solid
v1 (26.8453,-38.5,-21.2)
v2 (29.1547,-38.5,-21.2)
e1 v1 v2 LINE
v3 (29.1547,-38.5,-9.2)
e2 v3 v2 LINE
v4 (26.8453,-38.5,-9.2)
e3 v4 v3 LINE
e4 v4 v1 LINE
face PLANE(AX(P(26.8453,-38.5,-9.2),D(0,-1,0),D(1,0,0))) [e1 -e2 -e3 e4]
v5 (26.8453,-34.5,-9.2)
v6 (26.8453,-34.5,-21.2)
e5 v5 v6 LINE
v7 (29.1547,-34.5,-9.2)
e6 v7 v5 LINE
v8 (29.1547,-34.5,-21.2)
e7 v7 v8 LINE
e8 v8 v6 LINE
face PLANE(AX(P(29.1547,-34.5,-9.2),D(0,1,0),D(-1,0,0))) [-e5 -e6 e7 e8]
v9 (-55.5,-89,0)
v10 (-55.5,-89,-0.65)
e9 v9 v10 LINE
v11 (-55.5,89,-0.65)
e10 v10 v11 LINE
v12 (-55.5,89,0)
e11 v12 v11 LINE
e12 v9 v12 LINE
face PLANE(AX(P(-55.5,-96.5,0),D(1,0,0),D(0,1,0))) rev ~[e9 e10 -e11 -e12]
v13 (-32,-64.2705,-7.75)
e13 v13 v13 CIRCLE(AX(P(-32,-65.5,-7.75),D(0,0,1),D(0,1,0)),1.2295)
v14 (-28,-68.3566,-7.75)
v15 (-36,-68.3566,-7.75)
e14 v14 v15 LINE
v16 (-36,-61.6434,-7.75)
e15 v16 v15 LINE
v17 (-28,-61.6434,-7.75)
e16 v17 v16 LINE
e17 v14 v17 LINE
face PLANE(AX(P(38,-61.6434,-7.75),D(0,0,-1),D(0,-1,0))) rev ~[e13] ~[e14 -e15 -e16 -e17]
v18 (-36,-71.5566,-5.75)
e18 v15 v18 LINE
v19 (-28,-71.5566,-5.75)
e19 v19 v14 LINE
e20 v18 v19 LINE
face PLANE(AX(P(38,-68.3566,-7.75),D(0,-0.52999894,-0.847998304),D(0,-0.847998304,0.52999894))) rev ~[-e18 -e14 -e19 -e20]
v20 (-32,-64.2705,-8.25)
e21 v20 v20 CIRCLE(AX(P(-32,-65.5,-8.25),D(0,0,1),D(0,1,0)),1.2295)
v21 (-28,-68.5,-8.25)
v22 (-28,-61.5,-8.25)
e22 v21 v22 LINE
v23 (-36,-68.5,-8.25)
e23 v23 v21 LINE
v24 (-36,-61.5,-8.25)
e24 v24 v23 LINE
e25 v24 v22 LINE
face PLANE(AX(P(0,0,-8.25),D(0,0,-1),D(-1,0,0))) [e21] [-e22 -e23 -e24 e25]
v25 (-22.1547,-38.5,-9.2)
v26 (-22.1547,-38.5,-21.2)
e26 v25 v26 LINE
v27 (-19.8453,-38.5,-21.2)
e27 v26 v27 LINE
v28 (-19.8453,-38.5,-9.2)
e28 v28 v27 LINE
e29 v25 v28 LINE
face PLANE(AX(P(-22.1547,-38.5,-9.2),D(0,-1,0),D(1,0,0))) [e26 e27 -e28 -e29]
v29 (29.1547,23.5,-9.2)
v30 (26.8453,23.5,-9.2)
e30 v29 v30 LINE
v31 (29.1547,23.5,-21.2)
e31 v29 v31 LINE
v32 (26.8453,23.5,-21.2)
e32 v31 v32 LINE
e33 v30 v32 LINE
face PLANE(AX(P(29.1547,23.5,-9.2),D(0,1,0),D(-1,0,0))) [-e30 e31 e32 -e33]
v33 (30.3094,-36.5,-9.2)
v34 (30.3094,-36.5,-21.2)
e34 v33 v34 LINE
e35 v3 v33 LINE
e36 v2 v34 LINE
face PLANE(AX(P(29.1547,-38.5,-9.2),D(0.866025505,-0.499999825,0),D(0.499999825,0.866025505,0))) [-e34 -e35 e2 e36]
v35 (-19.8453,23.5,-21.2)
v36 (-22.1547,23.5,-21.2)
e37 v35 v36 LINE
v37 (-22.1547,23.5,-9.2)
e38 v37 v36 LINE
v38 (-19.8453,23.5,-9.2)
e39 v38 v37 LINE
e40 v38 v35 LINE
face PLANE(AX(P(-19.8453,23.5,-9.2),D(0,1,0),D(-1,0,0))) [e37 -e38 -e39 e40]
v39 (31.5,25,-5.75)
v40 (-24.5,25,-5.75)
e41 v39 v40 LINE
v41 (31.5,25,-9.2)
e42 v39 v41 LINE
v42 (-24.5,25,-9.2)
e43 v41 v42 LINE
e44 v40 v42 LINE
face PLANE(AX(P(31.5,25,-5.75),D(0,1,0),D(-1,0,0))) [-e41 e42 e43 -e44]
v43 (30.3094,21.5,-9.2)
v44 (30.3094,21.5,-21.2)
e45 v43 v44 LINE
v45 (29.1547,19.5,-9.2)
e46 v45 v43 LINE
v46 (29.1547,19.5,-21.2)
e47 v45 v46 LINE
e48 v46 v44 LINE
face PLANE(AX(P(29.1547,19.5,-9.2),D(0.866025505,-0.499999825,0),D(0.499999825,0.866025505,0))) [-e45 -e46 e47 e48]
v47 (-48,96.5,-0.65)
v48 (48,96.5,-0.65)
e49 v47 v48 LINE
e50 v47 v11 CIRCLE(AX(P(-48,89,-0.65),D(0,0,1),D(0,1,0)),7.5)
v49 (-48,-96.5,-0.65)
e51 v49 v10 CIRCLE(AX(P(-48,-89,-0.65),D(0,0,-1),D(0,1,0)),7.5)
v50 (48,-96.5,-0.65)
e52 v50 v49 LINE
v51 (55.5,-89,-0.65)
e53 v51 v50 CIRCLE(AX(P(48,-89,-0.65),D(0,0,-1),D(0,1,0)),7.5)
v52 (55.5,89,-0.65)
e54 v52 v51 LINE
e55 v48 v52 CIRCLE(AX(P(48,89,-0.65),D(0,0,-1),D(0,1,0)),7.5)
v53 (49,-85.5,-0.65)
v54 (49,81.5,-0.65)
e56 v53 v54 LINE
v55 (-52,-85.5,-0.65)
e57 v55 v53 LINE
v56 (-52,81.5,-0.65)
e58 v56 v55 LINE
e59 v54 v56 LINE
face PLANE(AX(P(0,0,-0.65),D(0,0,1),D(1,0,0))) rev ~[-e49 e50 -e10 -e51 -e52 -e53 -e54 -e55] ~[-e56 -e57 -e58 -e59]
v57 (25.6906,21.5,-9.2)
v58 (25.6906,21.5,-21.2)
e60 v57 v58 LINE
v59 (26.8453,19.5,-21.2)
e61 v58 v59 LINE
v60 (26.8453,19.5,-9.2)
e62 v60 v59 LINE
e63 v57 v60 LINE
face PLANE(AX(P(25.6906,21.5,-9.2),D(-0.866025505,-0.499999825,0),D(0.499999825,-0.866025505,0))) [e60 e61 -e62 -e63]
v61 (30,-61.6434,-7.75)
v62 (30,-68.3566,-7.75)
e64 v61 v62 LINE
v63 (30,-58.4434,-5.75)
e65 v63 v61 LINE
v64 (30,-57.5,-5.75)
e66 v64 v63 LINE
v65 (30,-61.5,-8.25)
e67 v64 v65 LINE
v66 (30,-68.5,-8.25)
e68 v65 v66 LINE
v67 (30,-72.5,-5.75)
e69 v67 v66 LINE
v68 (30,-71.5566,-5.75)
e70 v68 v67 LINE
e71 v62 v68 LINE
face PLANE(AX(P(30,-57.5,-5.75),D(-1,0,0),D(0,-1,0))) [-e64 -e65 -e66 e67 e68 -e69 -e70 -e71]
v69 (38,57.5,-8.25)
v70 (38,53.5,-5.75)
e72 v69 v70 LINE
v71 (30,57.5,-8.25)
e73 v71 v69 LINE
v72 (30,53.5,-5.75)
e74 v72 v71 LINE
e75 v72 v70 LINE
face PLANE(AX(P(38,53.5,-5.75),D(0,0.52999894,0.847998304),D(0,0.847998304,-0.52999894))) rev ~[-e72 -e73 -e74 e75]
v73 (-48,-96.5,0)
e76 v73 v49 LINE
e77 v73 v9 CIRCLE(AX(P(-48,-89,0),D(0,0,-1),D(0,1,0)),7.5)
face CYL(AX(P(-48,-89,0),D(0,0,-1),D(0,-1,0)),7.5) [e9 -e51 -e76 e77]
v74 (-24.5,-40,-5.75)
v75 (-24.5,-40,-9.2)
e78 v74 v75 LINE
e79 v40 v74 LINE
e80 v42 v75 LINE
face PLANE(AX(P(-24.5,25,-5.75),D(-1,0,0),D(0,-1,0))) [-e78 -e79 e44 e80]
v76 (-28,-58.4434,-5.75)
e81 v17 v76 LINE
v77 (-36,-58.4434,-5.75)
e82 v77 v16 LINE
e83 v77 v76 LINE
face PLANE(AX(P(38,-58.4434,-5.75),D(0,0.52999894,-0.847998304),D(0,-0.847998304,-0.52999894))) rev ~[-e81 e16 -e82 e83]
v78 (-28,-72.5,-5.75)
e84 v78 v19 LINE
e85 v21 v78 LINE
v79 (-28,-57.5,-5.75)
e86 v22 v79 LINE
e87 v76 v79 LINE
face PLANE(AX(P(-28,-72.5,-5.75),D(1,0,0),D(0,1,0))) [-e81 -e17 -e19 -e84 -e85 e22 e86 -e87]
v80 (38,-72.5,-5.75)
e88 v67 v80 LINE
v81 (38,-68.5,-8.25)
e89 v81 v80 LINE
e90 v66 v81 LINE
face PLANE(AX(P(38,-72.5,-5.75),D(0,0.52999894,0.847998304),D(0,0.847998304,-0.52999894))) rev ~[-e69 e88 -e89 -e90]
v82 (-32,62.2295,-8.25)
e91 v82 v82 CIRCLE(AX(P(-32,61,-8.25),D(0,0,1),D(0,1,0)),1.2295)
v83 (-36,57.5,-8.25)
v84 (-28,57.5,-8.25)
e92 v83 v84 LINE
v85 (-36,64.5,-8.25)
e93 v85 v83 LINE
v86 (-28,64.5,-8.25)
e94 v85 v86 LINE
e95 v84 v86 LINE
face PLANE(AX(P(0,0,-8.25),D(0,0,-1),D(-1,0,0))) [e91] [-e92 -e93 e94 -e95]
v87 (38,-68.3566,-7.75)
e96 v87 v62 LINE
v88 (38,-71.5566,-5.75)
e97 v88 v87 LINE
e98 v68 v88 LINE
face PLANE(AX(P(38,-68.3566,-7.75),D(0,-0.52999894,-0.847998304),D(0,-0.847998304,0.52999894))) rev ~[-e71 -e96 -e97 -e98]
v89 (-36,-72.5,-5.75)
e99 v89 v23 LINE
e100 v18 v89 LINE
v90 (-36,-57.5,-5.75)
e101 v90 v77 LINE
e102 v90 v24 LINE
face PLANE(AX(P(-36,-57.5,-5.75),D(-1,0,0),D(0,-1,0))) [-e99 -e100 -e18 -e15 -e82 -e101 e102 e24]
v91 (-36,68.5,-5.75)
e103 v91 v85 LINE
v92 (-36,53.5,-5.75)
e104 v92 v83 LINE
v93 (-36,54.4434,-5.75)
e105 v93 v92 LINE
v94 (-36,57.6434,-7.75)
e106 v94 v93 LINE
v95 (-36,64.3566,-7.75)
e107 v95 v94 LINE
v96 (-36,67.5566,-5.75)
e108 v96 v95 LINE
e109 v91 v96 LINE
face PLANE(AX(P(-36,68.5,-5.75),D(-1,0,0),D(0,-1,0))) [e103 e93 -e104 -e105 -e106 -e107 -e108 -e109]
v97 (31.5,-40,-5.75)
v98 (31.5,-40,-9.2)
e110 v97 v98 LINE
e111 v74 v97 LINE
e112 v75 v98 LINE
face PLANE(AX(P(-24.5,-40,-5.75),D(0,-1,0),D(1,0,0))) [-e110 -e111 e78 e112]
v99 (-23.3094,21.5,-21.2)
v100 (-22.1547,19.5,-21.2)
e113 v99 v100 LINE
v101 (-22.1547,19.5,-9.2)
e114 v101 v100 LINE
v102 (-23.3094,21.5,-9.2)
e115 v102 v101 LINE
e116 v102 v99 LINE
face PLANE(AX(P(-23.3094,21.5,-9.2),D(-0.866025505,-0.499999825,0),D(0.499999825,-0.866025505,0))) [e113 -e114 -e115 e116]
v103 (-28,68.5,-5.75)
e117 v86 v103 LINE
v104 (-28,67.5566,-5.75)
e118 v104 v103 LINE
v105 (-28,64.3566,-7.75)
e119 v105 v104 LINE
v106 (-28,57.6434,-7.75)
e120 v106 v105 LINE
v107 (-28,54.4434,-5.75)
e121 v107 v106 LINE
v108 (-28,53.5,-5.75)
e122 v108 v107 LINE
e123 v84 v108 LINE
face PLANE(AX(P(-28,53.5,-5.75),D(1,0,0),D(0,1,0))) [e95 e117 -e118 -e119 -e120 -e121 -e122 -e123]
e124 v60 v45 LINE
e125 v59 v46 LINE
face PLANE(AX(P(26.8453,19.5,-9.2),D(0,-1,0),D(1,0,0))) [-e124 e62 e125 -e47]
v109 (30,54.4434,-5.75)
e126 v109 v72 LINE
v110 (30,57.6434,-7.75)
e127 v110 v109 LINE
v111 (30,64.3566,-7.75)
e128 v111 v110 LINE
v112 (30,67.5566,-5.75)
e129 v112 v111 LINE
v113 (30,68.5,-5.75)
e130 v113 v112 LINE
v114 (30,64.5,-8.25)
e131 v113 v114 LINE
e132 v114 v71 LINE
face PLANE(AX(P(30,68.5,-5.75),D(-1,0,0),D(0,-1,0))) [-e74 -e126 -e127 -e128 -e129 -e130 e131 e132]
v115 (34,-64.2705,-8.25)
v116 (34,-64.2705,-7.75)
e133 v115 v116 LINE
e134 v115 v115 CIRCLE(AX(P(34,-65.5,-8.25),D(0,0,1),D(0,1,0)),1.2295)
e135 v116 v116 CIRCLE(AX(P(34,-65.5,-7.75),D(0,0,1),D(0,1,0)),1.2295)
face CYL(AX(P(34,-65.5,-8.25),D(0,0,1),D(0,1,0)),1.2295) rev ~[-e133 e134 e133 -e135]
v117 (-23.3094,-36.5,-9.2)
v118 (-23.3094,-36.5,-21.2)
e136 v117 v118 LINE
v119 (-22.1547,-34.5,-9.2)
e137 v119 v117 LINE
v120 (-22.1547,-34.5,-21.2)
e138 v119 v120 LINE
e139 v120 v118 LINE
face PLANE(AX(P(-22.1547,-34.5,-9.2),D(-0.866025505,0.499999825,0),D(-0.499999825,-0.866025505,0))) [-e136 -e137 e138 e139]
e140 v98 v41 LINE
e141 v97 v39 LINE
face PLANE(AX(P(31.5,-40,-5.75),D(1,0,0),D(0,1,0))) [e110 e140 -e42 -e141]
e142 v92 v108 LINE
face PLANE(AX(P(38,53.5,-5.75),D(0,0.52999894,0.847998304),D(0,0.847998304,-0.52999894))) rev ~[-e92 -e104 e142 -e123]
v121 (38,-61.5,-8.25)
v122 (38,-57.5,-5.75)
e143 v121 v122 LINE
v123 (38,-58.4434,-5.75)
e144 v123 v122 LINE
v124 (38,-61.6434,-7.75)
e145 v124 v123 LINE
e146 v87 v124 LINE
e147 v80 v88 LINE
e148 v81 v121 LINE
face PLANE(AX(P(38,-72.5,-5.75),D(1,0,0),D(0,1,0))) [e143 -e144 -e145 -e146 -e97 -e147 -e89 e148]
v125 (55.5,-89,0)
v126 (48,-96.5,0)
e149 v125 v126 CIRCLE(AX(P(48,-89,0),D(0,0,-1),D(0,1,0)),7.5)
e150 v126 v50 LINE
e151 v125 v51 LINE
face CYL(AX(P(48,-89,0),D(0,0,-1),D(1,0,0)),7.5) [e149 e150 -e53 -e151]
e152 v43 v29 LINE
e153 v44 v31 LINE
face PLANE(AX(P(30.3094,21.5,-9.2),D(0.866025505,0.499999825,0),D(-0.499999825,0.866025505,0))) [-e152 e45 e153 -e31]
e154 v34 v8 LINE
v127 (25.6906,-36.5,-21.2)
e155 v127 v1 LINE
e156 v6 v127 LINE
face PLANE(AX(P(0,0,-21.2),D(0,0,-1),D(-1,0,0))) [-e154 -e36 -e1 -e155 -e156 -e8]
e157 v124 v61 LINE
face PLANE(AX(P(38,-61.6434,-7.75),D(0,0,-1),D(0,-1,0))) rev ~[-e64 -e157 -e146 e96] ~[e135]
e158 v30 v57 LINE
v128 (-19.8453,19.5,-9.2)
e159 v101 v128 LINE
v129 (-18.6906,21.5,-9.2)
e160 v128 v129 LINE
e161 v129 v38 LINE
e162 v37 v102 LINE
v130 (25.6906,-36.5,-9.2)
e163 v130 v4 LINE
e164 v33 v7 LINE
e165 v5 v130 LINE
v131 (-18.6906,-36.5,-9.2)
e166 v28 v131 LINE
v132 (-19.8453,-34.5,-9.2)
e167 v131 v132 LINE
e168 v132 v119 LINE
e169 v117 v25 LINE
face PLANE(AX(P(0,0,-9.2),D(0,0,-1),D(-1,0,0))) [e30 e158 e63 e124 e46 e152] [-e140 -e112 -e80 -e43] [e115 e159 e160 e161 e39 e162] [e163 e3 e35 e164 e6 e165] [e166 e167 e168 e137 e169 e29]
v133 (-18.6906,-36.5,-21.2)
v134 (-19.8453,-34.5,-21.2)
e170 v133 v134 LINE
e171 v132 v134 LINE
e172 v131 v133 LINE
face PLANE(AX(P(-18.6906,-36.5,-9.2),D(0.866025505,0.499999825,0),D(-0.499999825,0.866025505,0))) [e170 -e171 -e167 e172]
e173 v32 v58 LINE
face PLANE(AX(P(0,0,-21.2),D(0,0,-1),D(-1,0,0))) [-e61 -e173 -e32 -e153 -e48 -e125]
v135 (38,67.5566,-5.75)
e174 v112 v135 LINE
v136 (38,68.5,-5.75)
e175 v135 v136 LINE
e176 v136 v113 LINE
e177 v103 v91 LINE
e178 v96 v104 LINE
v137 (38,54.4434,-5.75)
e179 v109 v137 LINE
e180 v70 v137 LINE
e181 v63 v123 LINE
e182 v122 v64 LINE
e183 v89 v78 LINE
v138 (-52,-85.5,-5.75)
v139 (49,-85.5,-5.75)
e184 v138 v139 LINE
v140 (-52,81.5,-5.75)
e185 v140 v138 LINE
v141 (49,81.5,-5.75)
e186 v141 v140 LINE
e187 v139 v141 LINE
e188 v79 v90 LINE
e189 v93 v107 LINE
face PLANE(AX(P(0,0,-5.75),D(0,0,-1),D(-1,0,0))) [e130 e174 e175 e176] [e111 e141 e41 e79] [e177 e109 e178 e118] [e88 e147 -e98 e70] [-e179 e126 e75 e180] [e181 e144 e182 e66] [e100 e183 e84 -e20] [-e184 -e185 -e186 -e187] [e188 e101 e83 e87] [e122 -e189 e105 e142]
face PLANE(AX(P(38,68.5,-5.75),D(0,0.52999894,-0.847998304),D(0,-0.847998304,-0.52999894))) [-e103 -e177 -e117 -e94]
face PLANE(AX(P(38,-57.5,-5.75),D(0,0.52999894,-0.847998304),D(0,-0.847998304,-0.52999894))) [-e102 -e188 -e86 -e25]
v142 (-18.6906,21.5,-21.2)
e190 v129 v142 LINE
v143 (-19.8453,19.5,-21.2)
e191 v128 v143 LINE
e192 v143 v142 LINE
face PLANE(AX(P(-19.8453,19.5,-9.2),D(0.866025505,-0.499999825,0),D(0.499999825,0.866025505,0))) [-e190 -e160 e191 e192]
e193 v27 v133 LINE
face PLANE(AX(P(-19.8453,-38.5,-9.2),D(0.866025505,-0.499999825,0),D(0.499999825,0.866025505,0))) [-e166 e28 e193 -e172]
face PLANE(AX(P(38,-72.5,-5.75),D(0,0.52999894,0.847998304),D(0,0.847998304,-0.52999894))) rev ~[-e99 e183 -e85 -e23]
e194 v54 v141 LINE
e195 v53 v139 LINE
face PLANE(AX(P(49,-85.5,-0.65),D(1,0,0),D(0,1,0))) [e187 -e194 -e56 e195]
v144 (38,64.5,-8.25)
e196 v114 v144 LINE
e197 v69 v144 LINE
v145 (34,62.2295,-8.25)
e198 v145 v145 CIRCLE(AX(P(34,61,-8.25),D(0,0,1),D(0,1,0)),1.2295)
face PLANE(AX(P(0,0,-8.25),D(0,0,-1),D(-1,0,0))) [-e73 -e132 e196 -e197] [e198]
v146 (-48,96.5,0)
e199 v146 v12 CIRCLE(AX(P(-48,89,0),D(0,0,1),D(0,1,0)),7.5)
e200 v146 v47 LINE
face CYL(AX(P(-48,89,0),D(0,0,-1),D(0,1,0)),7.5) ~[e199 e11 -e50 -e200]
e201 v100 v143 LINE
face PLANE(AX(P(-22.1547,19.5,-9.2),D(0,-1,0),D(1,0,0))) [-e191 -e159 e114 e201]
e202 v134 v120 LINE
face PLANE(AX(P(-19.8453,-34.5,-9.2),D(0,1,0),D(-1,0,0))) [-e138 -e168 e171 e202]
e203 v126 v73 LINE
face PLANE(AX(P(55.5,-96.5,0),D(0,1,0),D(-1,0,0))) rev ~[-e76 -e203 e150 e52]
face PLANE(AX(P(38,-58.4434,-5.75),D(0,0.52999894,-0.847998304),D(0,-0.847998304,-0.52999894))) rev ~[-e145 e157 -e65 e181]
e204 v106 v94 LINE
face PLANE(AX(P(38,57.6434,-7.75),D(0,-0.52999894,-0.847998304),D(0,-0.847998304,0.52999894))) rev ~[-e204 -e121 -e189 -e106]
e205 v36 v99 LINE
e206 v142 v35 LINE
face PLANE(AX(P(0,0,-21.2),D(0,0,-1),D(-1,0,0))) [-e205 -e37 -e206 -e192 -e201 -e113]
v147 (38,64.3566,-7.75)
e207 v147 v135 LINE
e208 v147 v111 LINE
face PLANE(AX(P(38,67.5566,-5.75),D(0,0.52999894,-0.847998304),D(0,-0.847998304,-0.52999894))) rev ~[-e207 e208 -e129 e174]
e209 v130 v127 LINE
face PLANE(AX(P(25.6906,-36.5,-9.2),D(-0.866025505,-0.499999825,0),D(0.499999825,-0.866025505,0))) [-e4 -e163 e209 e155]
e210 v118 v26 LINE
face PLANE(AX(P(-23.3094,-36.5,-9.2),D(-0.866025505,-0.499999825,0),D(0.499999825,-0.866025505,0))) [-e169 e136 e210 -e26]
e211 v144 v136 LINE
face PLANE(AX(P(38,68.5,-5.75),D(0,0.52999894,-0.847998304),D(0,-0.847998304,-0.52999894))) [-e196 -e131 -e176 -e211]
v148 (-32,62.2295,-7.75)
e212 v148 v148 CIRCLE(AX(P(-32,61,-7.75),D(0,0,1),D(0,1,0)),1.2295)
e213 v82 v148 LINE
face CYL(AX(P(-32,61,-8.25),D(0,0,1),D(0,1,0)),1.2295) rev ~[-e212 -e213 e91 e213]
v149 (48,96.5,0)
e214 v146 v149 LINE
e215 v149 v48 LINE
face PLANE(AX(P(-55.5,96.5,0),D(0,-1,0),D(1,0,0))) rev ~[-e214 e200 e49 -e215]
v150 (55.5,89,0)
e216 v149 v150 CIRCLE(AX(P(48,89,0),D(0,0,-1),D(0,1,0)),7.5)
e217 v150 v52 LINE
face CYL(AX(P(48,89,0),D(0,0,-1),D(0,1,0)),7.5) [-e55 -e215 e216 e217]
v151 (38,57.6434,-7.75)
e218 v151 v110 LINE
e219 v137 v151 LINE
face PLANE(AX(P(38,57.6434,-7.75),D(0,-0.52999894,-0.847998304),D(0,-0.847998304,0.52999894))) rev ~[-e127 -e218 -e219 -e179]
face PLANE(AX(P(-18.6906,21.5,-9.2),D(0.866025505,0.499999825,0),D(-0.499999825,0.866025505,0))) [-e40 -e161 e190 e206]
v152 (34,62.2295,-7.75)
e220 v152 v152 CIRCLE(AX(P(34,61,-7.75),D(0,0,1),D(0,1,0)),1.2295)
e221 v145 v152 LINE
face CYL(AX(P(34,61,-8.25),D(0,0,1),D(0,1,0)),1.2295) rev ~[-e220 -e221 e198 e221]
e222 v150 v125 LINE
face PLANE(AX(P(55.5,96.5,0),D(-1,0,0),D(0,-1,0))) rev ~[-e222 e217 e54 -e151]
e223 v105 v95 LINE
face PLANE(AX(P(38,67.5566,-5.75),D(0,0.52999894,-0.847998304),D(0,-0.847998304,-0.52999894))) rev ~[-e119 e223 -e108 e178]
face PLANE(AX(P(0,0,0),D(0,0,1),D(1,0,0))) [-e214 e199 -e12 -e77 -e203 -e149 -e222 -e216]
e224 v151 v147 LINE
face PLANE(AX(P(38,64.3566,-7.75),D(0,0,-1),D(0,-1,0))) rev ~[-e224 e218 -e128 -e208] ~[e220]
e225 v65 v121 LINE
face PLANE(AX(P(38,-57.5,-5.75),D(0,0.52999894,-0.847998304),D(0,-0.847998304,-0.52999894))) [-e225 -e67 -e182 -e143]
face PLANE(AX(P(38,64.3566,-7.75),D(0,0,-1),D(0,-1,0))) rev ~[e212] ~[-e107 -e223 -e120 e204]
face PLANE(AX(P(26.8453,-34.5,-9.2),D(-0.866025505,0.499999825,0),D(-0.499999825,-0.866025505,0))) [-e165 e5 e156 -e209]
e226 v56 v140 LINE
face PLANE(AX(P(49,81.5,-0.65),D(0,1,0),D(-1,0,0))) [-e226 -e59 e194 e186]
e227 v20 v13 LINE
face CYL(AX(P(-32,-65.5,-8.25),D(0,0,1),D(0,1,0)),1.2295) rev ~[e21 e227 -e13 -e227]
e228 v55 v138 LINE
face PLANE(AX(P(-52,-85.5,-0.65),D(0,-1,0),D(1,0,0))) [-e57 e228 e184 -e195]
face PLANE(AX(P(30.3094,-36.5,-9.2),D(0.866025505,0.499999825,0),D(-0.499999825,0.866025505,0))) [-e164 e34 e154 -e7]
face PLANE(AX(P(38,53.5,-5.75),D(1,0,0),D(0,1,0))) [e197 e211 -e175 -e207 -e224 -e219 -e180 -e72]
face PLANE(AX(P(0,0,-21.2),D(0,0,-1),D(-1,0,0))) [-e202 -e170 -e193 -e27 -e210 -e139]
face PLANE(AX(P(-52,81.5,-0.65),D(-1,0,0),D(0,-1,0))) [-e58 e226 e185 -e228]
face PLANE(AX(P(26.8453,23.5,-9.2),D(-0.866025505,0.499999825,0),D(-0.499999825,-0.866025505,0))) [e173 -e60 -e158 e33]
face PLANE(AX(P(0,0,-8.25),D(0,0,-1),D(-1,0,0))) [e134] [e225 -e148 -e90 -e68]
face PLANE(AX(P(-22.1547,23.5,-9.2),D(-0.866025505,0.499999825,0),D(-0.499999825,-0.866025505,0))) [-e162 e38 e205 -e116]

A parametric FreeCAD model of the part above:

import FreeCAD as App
import Part
import Sketcher
Q = App.Units.Quantity


def edges_at(feature, points):
    """Names of the edges that pass closest to the given points."""
    edges = feature.Shape.Edges
    near = lambda p: min(range(len(edges)), key=lambda i: edges[i].distToShape(Part.Vertex(*p))[0])
    return sorted({f"Edge{near(p) + 1}" for p in points})

doc = App.newDocument("Part")
body = doc.addObject("PartDesign::Body", "Body")

sketch1 = body.newObject("Sketcher::SketchObject", "Sketch")
sketch1.AttachmentSupport = (doc.getObject("XY_Plane"), [""])
sketch1.MapMode = "FlatFace"
sketch1.addGeometry([
    Part.LineSegment(App.Vector(56, 96, 0), App.Vector(-56, 96, 0)),
    Part.LineSegment(App.Vector(-56, 96, 0), App.Vector(-56, -96, 0)),
    Part.LineSegment(App.Vector(-56, -96, 0), App.Vector(56, -96, 0)),
    Part.LineSegment(App.Vector(56, -96, 0), App.Vector(56, 96, 0)),
], False)
sketch1.addConstraint([
    Sketcher.Constraint("Coincident", 0, 2, 1, 1),
    Sketcher.Constraint("Coincident", 1, 2, 2, 1),
    Sketcher.Constraint("Coincident", 2, 2, 3, 1),
    Sketcher.Constraint("Coincident", 3, 2, 0, 1),
    Sketcher.Constraint("Horizontal", 0),
    Sketcher.Constraint("Vertical", 1),
    Sketcher.Constraint("Horizontal", 2),
    Sketcher.Constraint("Vertical", 3),
    Sketcher.Constraint("Symmetric", 0, 2, 2, 2, -1, 1),
    Sketcher.Constraint("DistanceX", 0, 2, 0, 1, 111.0),
    Sketcher.Constraint("DistanceY", 1, 2, 1, 1, 193.0),
])
pad1 = body.newObject("PartDesign::Pad", "Pad")
pad1.Profile = sketch1
pad1.Length = 0.65
pad1.Reversed = True
doc.recompute()

fillet = body.newObject("PartDesign::Fillet", "Fillet")
fillet.Base = (pad1, edges_at(pad1, [
    (-55.5, -96.5, -0.325),
    (55.5, -96.5, -0.325),
    (55.5, 96.5, -0.325),
    (-55.5, 96.5, -0.325),
]))
fillet.Radius = 7.5

sketch2 = body.newObject("Sketcher::SketchObject", "Sketch001")
sketch2.AttachmentSupport = (doc.getObject("XY_Plane"), [""])
sketch2.MapMode = "FlatFace"
sketch2.AttachmentOffset = App.Placement(App.Vector(0, 0, -0.65), App.Rotation())
sketch2.addGeometry([
    Part.LineSegment(App.Vector(-52, 82, 0), App.Vector(49, 82, 0)),
    Part.LineSegment(App.Vector(49, 82, 0), App.Vector(49, -86, 0)),
    Part.LineSegment(App.Vector(49, -86, 0), App.Vector(-52, -86, 0)),
    Part.LineSegment(App.Vector(-52, -86, 0), App.Vector(-52, 82, 0)),
], False)
sketch2.addConstraint([
    Sketcher.Constraint("Coincident", 0, 2, 1, 1),
    Sketcher.Constraint("Coincident", 1, 2, 2, 1),
    Sketcher.Constraint("Coincident", 2, 2, 3, 1),
    Sketcher.Constraint("Coincident", 3, 2, 0, 1),
    Sketcher.Constraint("Horizontal", 0),
    Sketcher.Constraint("Vertical", 1),
    Sketcher.Constraint("Horizontal", 2),
    Sketcher.Constraint("Vertical", 3),
    Sketcher.Constraint("DistanceX", 0, 1, 0, 2, 101.0),
    Sketcher.Constraint("DistanceY", 1, 2, 1, 1, 167.0),
    Sketcher.Constraint("DistanceX", -1, 1, 0, 2, 49.0),
    Sketcher.Constraint("DistanceY", -1, 1, 0, 2, 81.5),
])
pad2 = body.newObject("PartDesign::Pad", "Pad001")
pad2.Profile = sketch2
pad2.Length = 5.1
pad2.Reversed = True

sketch3 = body.newObject("Sketcher::SketchObject", "Sketch002")
sketch3.AttachmentSupport = (doc.getObject("XY_Plane"), [""])
sketch3.MapMode = "FlatFace"
sketch3.AttachmentOffset = App.Placement(App.Vector(0, 0, -5.75), App.Rotation())
sketch3.addGeometry([
    Part.LineSegment(App.Vector(30, 68, 0), App.Vector(38, 68, 0)),
    Part.LineSegment(App.Vector(38, 68, 0), App.Vector(38, 54, 0)),
    Part.LineSegment(App.Vector(38, 54, 0), App.Vector(30, 54, 0)),
    Part.LineSegment(App.Vector(30, 54, 0), App.Vector(30, 68, 0)),
    Part.LineSegment(App.Vector(-36, 68, 0), App.Vector(-28, 68, 0)),
    Part.LineSegment(App.Vector(-28, 68, 0), App.Vector(-28, 54, 0)),
    Part.LineSegment(App.Vector(-28, 54, 0), App.Vector(-36, 54, 0)),
    Part.LineSegment(App.Vector(-36, 54, 0), App.Vector(-36, 68, 0)),
    Part.LineSegment(App.Vector(30, -58, 0), App.Vector(38, -58, 0)),
    Part.LineSegment(App.Vector(38, -58, 0), App.Vector(38, -72, 0)),
    Part.LineSegment(App.Vector(38, -72, 0), App.Vector(30, -72, 0)),
    Part.LineSegment(App.Vector(30, -72, 0), App.Vector(30, -58, 0)),
    Part.LineSegment(App.Vector(-36, -58, 0), App.Vector(-28, -58, 0)),
    Part.LineSegment(App.Vector(-28, -58, 0), App.Vector(-28, -72, 0)),
    Part.LineSegment(App.Vector(-28, -72, 0), App.Vector(-36, -72, 0)),
    Part.LineSegment(App.Vector(-36, -72, 0), App.Vector(-36, -58, 0)),
], False)
sketch3.addConstraint([
    Sketcher.Constraint("Coincident", 0, 2, 1, 1),
    Sketcher.Constraint("Coincident", 1, 2, 2, 1),
    Sketcher.Constraint("Coincident", 2, 2, 3, 1),
    Sketcher.Constraint("Coincident", 3, 2, 0, 1),
    Sketcher.Constraint("Coincident", 4, 2, 5, 1),
    Sketcher.Constraint("Coincident", 5, 2, 6, 1),
    Sketcher.Constraint("Coincident", 6, 2, 7, 1),
    Sketcher.Constraint("Coincident", 7, 2, 4, 1),
    Sketcher.Constraint("Coincident", 8, 2, 9, 1),
    Sketcher.Constraint("Coincident", 9, 2, 10, 1),
    Sketcher.Constraint("Coincident", 10, 2, 11, 1),
    Sketcher.Constraint("Coincident", 11, 2, 8, 1),
    Sketcher.Constraint("Coincident", 12, 2, 13, 1),
    Sketcher.Constraint("Coincident", 13, 2, 14, 1),
    Sketcher.Constraint("Coincident", 14, 2, 15, 1),
    Sketcher.Constraint("Coincident", 15, 2, 12, 1),
    Sketcher.Constraint("Horizontal", 0),
    Sketcher.Constraint("Vertical", 1),
    Sketcher.Constraint("Horizontal", 2),
    Sketcher.Constraint("Vertical", 3),
    Sketcher.Constraint("Horizontal", 4),
    Sketcher.Constraint("Vertical", 5),
    Sketcher.Constraint("Horizontal", 6),
    Sketcher.Constraint("Vertical", 7),
    Sketcher.Constraint("Horizontal", 8),
    Sketcher.Constraint("Vertical", 9),
    Sketcher.Constraint("Horizontal", 10),
    Sketcher.Constraint("Vertical", 11),
    Sketcher.Constraint("Horizontal", 12),
    Sketcher.Constraint("Vertical", 13),
    Sketcher.Constraint("Horizontal", 14),
    Sketcher.Constraint("Vertical", 15),
    Sketcher.Constraint("Horizontal", 3, 2, 4, 2),
    Sketcher.Constraint("Horizontal", 2, 2, 5, 2),
    Sketcher.Constraint("Horizontal", 11, 2, 12, 2),
    Sketcher.Constraint("Horizontal", 10, 2, 13, 2),
    Sketcher.Constraint("Vertical", 1, 2, 8, 2),
    Sketcher.Constraint("Vertical", 3, 2, 10, 2),
    Sketcher.Constraint("Vertical", 5, 2, 12, 2),
    Sketcher.Constraint("Vertical", 7, 2, 14, 2),
    Sketcher.Constraint("Equal", 2, 4),
    Sketcher.Constraint("Equal", 7, 9),
    Sketcher.Constraint("DistanceX", 0, 1, 0, 2, 8.0),
    Sketcher.Constraint("DistanceY", 1, 2, 1, 1, 15.0),
    Sketcher.Constraint("DistanceX", -1, 1, 0, 2, 38.0),
    Sketcher.Constraint("DistanceX", 4, 2, -1, 1, 28.0),
    Sketcher.Constraint("DistanceY", 8, 2, 1, 2, 111.0),
    Sketcher.Constraint("DistanceY", -1, 1, 0, 2, 68.5),
])
pad3 = body.newObject("PartDesign::Pad", "Pad002")
pad3.Profile = sketch3
pad3.Length = 2.5
pad3.Reversed = True

sketch4 = body.newObject("Sketcher::SketchObject", "Sketch003")
sketch4.AttachmentSupport = (doc.getObject("YZ_Plane"), [""])
sketch4.MapMode = "FlatFace"
sketch4.AttachmentOffset = App.Placement(App.Vector(0, 0, 38), App.Rotation())
sketch4.addGeometry([
    Part.LineSegment(App.Vector(-57.5, -8.2, 0), App.Vector(-57.5, -5.8, 0)),
    Part.LineSegment(App.Vector(-57.5, -5.8, 0), App.Vector(-61.5, -8.2, 0)),
    Part.LineSegment(App.Vector(-61.5, -8.2, 0), App.Vector(-57.5, -8.2, 0)),
    Part.LineSegment(App.Vector(68.5, -8.2, 0), App.Vector(68.5, -5.8, 0)),
    Part.LineSegment(App.Vector(68.5, -5.8, 0), App.Vector(64.5, -8.2, 0)),
    Part.LineSegment(App.Vector(64.5, -8.2, 0), App.Vector(68.5, -8.2, 0)),
    Part.LineSegment(App.Vector(64.4, -7.8, 0), App.Vector(67.6, -5.8, 0)),
    Part.LineSegment(App.Vector(67.6, -5.8, 0), App.Vector(54.4, -5.8, 0)),
    Part.LineSegment(App.Vector(54.4, -5.8, 0), App.Vector(57.6, -7.8, 0)),
    Part.LineSegment(App.Vector(57.6, -7.8, 0), App.Vector(64.4, -7.8, 0)),
    Part.LineSegment(App.Vector(53.5, -8.2, 0), App.Vector(57.5, -8.2, 0)),
    Part.LineSegment(App.Vector(57.5, -8.2, 0), App.Vector(53.5, -5.8, 0)),
    Part.LineSegment(App.Vector(53.5, -5.8, 0), App.Vector(53.5, -8.2, 0)),
    Part.LineSegment(App.Vector(-61.6, -7.8, 0), App.Vector(-58.4, -5.8, 0)),
    Part.LineSegment(App.Vector(-58.4, -5.8, 0), App.Vector(-71.6, -5.8, 0)),
    Part.LineSegment(App.Vector(-71.6, -5.8, 0), App.Vector(-68.4, -7.8, 0)),
    Part.LineSegment(App.Vector(-68.4, -7.8, 0), App.Vector(-61.6, -7.8, 0)),
    Part.LineSegment(App.Vector(-72.5, -8.2, 0), App.Vector(-68.5, -8.2, 0)),
    Part.LineSegment(App.Vector(-68.5, -8.2, 0), App.Vector(-72.5, -5.8, 0)),
    Part.LineSegment(App.Vector(-72.5, -5.8, 0), App.Vector(-72.5, -8.2, 0)),
], False)
sketch4.addConstraint([
    Sketcher.Constraint("Coincident", 0, 2, 1, 1),
    Sketcher.Constraint("Coincident", 1, 2, 2, 1),
    Sketcher.Constraint("Coincident", 2, 2, 0, 1),
    Sketcher.Constraint("Coincident", 3, 2, 4, 1),
    Sketcher.Constraint("Coincident", 4, 2, 5, 1),
    Sketcher.Constraint("Coincident", 5, 2, 3, 1),
    Sketcher.Constraint("Coincident", 6, 2, 7, 1),
    Sketcher.Constraint("Coincident", 7, 2, 8, 1),
    Sketcher.Constraint("Coincident", 8, 2, 9, 1),
    Sketcher.Constraint("Coincident", 9, 2, 6, 1),
    Sketcher.Constraint("Coincident", 10, 2, 11, 1),
    Sketcher.Constraint("Coincident", 11, 2, 12, 1),
    Sketcher.Constraint("Coincident", 12, 2, 10, 1),
    Sketcher.Constraint("Coincident", 13, 2, 14, 1),
    Sketcher.Constraint("Coincident", 14, 2, 15, 1),
    Sketcher.Constraint("Coincident", 15, 2, 16, 1),
    Sketcher.Constraint("Coincident", 16, 2, 13, 1),
    Sketcher.Constraint("Coincident", 17, 2, 18, 1),
    Sketcher.Constraint("Coincident", 18, 2, 19, 1),
    Sketcher.Constraint("Coincident", 19, 2, 17, 1),
    Sketcher.Constraint("Vertical", 0),
    Sketcher.Constraint("Horizontal", 2),
    Sketcher.Constraint("Vertical", 3),
    Sketcher.Constraint("Horizontal", 5),
    Sketcher.Constraint("Horizontal", 7),
    Sketcher.Constraint("Horizontal", 9),
    Sketcher.Constraint("Horizontal", 10),
    Sketcher.Constraint("Vertical", 12),
    Sketcher.Constraint("Horizontal", 14),
    Sketcher.Constraint("Horizontal", 16),
    Sketcher.Constraint("Horizontal", 17),
    Sketcher.Constraint("Vertical", 19),
    Sketcher.Constraint("Symmetric", 2, 2, 10, 2, -2),
    Sketcher.Constraint("Symmetric", 5, 2, 17, 2, -2),
    Sketcher.Constraint("Parallel", 1, 4),
    Sketcher.Constraint("Parallel", 4, 6),
    Sketcher.Constraint("Parallel", 8, 11),
    Sketcher.Constraint("Parallel", 6, 13),
    Sketcher.Constraint("Parallel", 11, 15),
    Sketcher.Constraint("Parallel", 15, 18),
    Sketcher.Constraint("Horizontal", 0, 2, 3, 2),
    Sketcher.Constraint("Horizontal", 2, 2, 4, 2),
    Sketcher.Constraint("Horizontal", 3, 2, 6, 2),
    Sketcher.Constraint("Horizontal", 7, 2, 11, 2),
    Sketcher.Constraint("Horizontal", 11, 2, 13, 2),
    Sketcher.Constraint("Horizontal", 9, 2, 15, 2),
    Sketcher.Constraint("Horizontal", 14, 2, 18, 2),
    Sketcher.Constraint("Equal", 5, 10),
    Sketcher.Constraint("Equal", 7, 14),
    Sketcher.Constraint("DistanceX", 10, 2, 4, 2, 7.0),
    Sketcher.Constraint("DistanceY", 4, 2, 8, 2, 0.5),
    Sketcher.Constraint("DistanceX", 2, 1, 2, 2, 4.0),
    Sketcher.Constraint("DistanceY", 0, 1, 0, 2, 2.5),
    Sketcher.Constraint("DistanceX", 0, 2, 3, 2, 126.0),
    Sketcher.Constraint("DistanceY", 0, 2, -1, 1, 5.75),
    Sketcher.Constraint("DistanceX", 7, 2, 7, 1, 13.1132),
    Sketcher.Constraint("DistanceX", -1, 1, 6, 2, 67.5566),
    Sketcher.Constraint("DistanceX", 13, 2, -1, 1, 58.4434),
])
pocket1 = body.newObject("PartDesign::Pocket", "Pocket")
pocket1.Profile = sketch4
pocket1.Type = "ThroughAll"
pocket1.Midplane = True

sketch5 = body.newObject("Sketcher::SketchObject", "Sketch004")
sketch5.AttachmentSupport = (doc.getObject("XY_Plane"), [""])
sketch5.MapMode = "FlatFace"
sketch5.AttachmentOffset = App.Placement(App.Vector(0, 0, -8.25), App.Rotation())
sketch5.addGeometry([
    Part.Circle(App.Vector(34, 61, 0), App.Vector(0, 0, 1), 1.2),
    Part.Circle(App.Vector(-32, 61, 0), App.Vector(0, 0, 1), 1.2),
    Part.Circle(App.Vector(-32, -65.5, 0), App.Vector(0, 0, 1), 1.2),
    Part.Circle(App.Vector(34, -65.5, 0), App.Vector(0, 0, 1), 1.2),
], False)
sketch5.addConstraint([
    Sketcher.Constraint("Equal", 0, 1),
    Sketcher.Constraint("Equal", 1, 2),
    Sketcher.Constraint("Equal", 2, 3),
    Sketcher.Constraint("Horizontal", 0, 3, 1, 3),
    Sketcher.Constraint("Horizontal", 2, 3, 3, 3),
    Sketcher.Constraint("Vertical", 1, 3, 2, 3),
    Sketcher.Constraint("Vertical", 0, 3, 3, 3),
    Sketcher.Constraint("Diameter", 0, 2.459),
    Sketcher.Constraint("DistanceX", -1, 1, 0, 3, 34.0),
    Sketcher.Constraint("DistanceY", -1, 1, 0, 3, 61.0),
    Sketcher.Constraint("DistanceX", 1, 3, -1, 1, 32.0),
    Sketcher.Constraint("DistanceY", 2, 3, -1, 1, 65.5),
])
doc.recompute()
hole = body.newObject("PartDesign::Hole", "Hole")
hole.Profile = sketch5
hole.ThreadType = "None"
hole.Diameter = 2.459
hole.DepthType = "Dimension"
hole.Depth = 0.5
hole.DrillPoint = "Flat"
hole.Reversed = True

sketch6 = body.newObject("Sketcher::SketchObject", "Sketch005")
sketch6.AttachmentSupport = (doc.getObject("XY_Plane"), [""])
sketch6.MapMode = "FlatFace"
sketch6.AttachmentOffset = App.Placement(App.Vector(0, 0, -5.75), App.Rotation())
sketch6.addGeometry([
    Part.LineSegment(App.Vector(-24, 25, 0), App.Vector(32, 25, 0)),
    Part.LineSegment(App.Vector(32, 25, 0), App.Vector(32, -40, 0)),
    Part.LineSegment(App.Vector(32, -40, 0), App.Vector(-24, -40, 0)),
    Part.LineSegment(App.Vector(-24, -40, 0), App.Vector(-24, 25, 0)),
], False)
sketch6.addConstraint([
    Sketcher.Constraint("Coincident", 0, 2, 1, 1),
    Sketcher.Constraint("Coincident", 1, 2, 2, 1),
    Sketcher.Constraint("Coincident", 2, 2, 3, 1),
    Sketcher.Constraint("Coincident", 3, 2, 0, 1),
    Sketcher.Constraint("Horizontal", 0),
    Sketcher.Constraint("Vertical", 1),
    Sketcher.Constraint("Horizontal", 2),
    Sketcher.Constraint("Vertical", 3),
    Sketcher.Constraint("DistanceX", 0, 1, 0, 2, 56.0),
    Sketcher.Constraint("DistanceY", 1, 2, 1, 1, 65.0),
    Sketcher.Constraint("DistanceY", -1, 1, 0, 2, 25.0),
    Sketcher.Constraint("DistanceX", -1, 1, 0, 2, 31.5),
])
pad4 = body.newObject("PartDesign::Pad", "Pad003")
pad4.Profile = sketch6
pad4.Length = 3.45
pad4.Reversed = True

sketch7 = body.newObject("Sketcher::SketchObject", "Sketch006")
sketch7.AttachmentSupport = (doc.getObject("XY_Plane"), [""])
sketch7.MapMode = "FlatFace"
sketch7.AttachmentOffset = App.Placement(App.Vector(0, 0, -9.2), App.Rotation())
sketch7.addGeometry([
    Part.LineSegment(App.Vector(25.7, -36.5, 0), App.Vector(26.8, -34.5, 0)),
    Part.LineSegment(App.Vector(26.8, -34.5, 0), App.Vector(29.2, -34.5, 0)),
    Part.LineSegment(App.Vector(29.2, -34.5, 0), App.Vector(30.3, -36.5, 0)),
    Part.LineSegment(App.Vector(30.3, -36.5, 0), App.Vector(29.2, -38.5, 0)),
    Part.LineSegment(App.Vector(29.2, -38.5, 0), App.Vector(26.8, -38.5, 0)),
    Part.LineSegment(App.Vector(26.8, -38.5, 0), App.Vector(25.7, -36.5, 0)),
    Part.LineSegment(App.Vector(25.7, 21.5, 0), App.Vector(26.8, 23.5, 0)),
    Part.LineSegment(App.Vector(26.8, 23.5, 0), App.Vector(29.2, 23.5, 0)),
    Part.LineSegment(App.Vector(29.2, 23.5, 0), App.Vector(30.3, 21.5, 0)),
    Part.LineSegment(App.Vector(30.3, 21.5, 0), App.Vector(29.2, 19.5, 0)),
    Part.LineSegment(App.Vector(29.2, 19.5, 0), App.Vector(26.8, 19.5, 0)),
    Part.LineSegment(App.Vector(26.8, 19.5, 0), App.Vector(25.7, 21.5, 0)),
    Part.LineSegment(App.Vector(-23.3, 21.5, 0), App.Vector(-22.2, 23.5, 0)),
    Part.LineSegment(App.Vector(-22.2, 23.5, 0), App.Vector(-19.8, 23.5, 0)),
    Part.LineSegment(App.Vector(-19.8, 23.5, 0), App.Vector(-18.7, 21.5, 0)),
    Part.LineSegment(App.Vector(-18.7, 21.5, 0), App.Vector(-19.8, 19.5, 0)),
    Part.LineSegment(App.Vector(-19.8, 19.5, 0), App.Vector(-22.2, 19.5, 0)),
    Part.LineSegment(App.Vector(-22.2, 19.5, 0), App.Vector(-23.3, 21.5, 0)),
    Part.LineSegment(App.Vector(-23.3, -36.5, 0), App.Vector(-22.2, -34.5, 0)),
    Part.LineSegment(App.Vector(-22.2, -34.5, 0), App.Vector(-19.8, -34.5, 0)),
    Part.LineSegment(App.Vector(-19.8, -34.5, 0), App.Vector(-18.7, -36.5, 0)),
    Part.LineSegment(App.Vector(-18.7, -36.5, 0), App.Vector(-19.8, -38.5, 0)),
    Part.LineSegment(App.Vector(-19.8, -38.5, 0), App.Vector(-22.2, -38.5, 0)),
    Part.LineSegment(App.Vector(-22.2, -38.5, 0), App.Vector(-23.3, -36.5, 0)),
], False)
sketch7.addConstraint([
    Sketcher.Constraint("Coincident", 0, 2, 1, 1),
    Sketcher.Constraint("Coincident", 1, 2, 2, 1),
    Sketcher.Constraint("Coincident", 2, 2, 3, 1),
    Sketcher.Constraint("Coincident", 3, 2, 4, 1),
    Sketcher.Constraint("Coincident", 4, 2, 5, 1),
    Sketcher.Constraint("Coincident", 5, 2, 0, 1),
    Sketcher.Constraint("Coincident", 6, 2, 7, 1),
    Sketcher.Constraint("Coincident", 7, 2, 8, 1),
    Sketcher.Constraint("Coincident", 8, 2, 9, 1),
    Sketcher.Constraint("Coincident", 9, 2, 10, 1),
    Sketcher.Constraint("Coincident", 10, 2, 11, 1),
    Sketcher.Constraint("Coincident", 11, 2, 6, 1),
    Sketcher.Constraint("Coincident", 12, 2, 13, 1),
    Sketcher.Constraint("Coincident", 13, 2, 14, 1),
    Sketcher.Constraint("Coincident", 14, 2, 15, 1),
    Sketcher.Constraint("Coincident", 15, 2, 16, 1),
    Sketcher.Constraint("Coincident", 16, 2, 17, 1),
    Sketcher.Constraint("Coincident", 17, 2, 12, 1),
    Sketcher.Constraint("Coincident", 18, 2, 19, 1),
    Sketcher.Constraint("Coincident", 19, 2, 20, 1),
    Sketcher.Constraint("Coincident", 20, 2, 21, 1),
    Sketcher.Constraint("Coincident", 21, 2, 22, 1),
    Sketcher.Constraint("Coincident", 22, 2, 23, 1),
    Sketcher.Constraint("Coincident", 23, 2, 18, 1),
    Sketcher.Constraint("Horizontal", 1),
    Sketcher.Constraint("Horizontal", 4),
    Sketcher.Constraint("Horizontal", 7),
    Sketcher.Constraint("Horizontal", 10),
    Sketcher.Constraint("Horizontal", 13),
    Sketcher.Constraint("Horizontal", 16),
    Sketcher.Constraint("Horizontal", 19),
    Sketcher.Constraint("Horizontal", 22),
    Sketcher.Constraint("Parallel", 0, 3),
    Sketcher.Constraint("Parallel", 2, 5),
    Sketcher.Constraint("Parallel", 3, 6),
    Sketcher.Constraint("Parallel", 5, 8),
    Sketcher.Constraint("Parallel", 6, 9),
    Sketcher.Constraint("Parallel", 8, 11),
    Sketcher.Constraint("Parallel", 9, 12),
    Sketcher.Constraint("Parallel", 11, 14),
    Sketcher.Constraint("Parallel", 12, 15),
    Sketcher.Constraint("Parallel", 14, 17),
    Sketcher.Constraint("Parallel", 15, 18),
    Sketcher.Constraint("Parallel", 17, 20),
    Sketcher.Constraint("Parallel", 18, 21),
    Sketcher.Constraint("Parallel", 20, 23),
    Sketcher.Constraint("Horizontal", 2, 2, 5, 2),
    Sketcher.Constraint("Horizontal", 8, 2, 11, 2),
    Sketcher.Constraint("Horizontal", 7, 2, 12, 2),
    Sketcher.Constraint("Horizontal", 11, 2, 14, 2),
    Sketcher.Constraint("Horizontal", 10, 2, 15, 2),
    Sketcher.Constraint("Horizontal", 14, 2, 17, 2),
    Sketcher.Constraint("Horizontal", 1, 2, 18, 2),
    Sketcher.Constraint("Horizontal", 5, 2, 20, 2),
    Sketcher.Constraint("Horizontal", 4, 2, 21, 2),
    Sketcher.Constraint("Horizontal", 20, 2, 23, 2),
    Sketcher.Constraint("Vertical", 1, 2, 3, 2),
    Sketcher.Constraint("Vertical", 0, 2, 4, 2),
    Sketcher.Constraint("Vertical", 4, 2, 6, 2),
    Sketcher.Constraint("Vertical", 3, 2, 7, 2),
    Sketcher.Constraint("Vertical", 2, 2, 8, 2),
    Sketcher.Constraint("Vertical", 7, 2, 9, 2),
    Sketcher.Constraint("Vertical", 16, 2, 18, 2),
    Sketcher.Constraint("Vertical", 15, 2, 19, 2),
    Sketcher.Constraint("Equal", 10, 13),
    Sketcher.Constraint("DistanceY", 3, 2, 1, 2, 4.0),
    Sketcher.Constraint("DistanceY", 0, 2, 6, 2, 58.0),
    Sketcher.Constraint("DistanceX", 12, 2, 6, 2, 49.0),
    Sketcher.Constraint("Angle", 0, Q("60 deg")),
    Sketcher.Constraint("DistanceY", 0, 2, -1, 1, 34.5),
    Sketcher.Constraint("DistanceX", 1, 1, 1, 2, 2.3094),
    Sketcher.Constraint("DistanceX", -1, 1, 0, 2, 26.8453),
])
pad5 = body.newObject("PartDesign::Pad", "Pad004")
pad5.Profile = sketch7
pad5.Length = 12
pad5.Reversed = True

doc.recompute()
